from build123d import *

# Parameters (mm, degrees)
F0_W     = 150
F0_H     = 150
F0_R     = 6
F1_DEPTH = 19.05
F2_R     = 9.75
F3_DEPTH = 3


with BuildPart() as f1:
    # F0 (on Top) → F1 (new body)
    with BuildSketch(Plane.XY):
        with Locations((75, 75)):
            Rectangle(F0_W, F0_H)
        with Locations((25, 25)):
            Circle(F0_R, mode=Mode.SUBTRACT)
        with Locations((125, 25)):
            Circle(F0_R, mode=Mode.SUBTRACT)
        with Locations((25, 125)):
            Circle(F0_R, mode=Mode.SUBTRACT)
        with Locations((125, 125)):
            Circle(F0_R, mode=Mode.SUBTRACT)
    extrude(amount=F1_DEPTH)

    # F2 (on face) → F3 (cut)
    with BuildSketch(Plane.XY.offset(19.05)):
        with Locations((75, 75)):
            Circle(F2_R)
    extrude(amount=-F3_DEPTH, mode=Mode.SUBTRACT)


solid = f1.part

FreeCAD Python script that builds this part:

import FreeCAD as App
import Part
import Sketcher

doc = App.newDocument("Part")
body = doc.addObject("PartDesign::Body", "Body")

sketch1 = doc.addObject("Sketcher::SketchObject", "Sketch")
body.addObject(sketch1)
sketch1.AttachmentSupport = (doc.XY_Plane, [""])
sketch1.MapMode = "FlatFace"
sketch1.addGeometry(Part.LineSegment(App.Vector(0, 150, 0), App.Vector(0, 0, 0)), False)
sketch1.addGeometry(Part.LineSegment(App.Vector(0, 0, 0), App.Vector(150, 0, 0)), False)
sketch1.addGeometry(Part.LineSegment(App.Vector(150, 0, 0), App.Vector(150, 150, 0)), False)
sketch1.addGeometry(Part.LineSegment(App.Vector(150, 150, 0), App.Vector(0, 150, 0)), False)
sketch1.addGeometry(Part.Circle(App.Vector(25, 25, 0), App.Vector(0, 0, 1), 6), False)
sketch1.addGeometry(Part.Circle(App.Vector(125, 25, 0), App.Vector(0, 0, 1), 6), False)
sketch1.addGeometry(Part.Circle(App.Vector(25, 125, 0), App.Vector(0, 0, 1), 6), False)
sketch1.addGeometry(Part.Circle(App.Vector(125, 125, 0), App.Vector(0, 0, 1), 6), False)
sketch1.addConstraint(Sketcher.Constraint("Coincident", 0, 2, 1, 1))
sketch1.addConstraint(Sketcher.Constraint("Coincident", 1, 2, 2, 1))
sketch1.addConstraint(Sketcher.Constraint("Coincident", 2, 2, 3, 1))
sketch1.addConstraint(Sketcher.Constraint("Coincident", 3, 2, 0, 1))
sketch1.addConstraint(Sketcher.Constraint("Vertical", 0))
sketch1.addConstraint(Sketcher.Constraint("Horizontal", 1))
sketch1.addConstraint(Sketcher.Constraint("Vertical", 2))
sketch1.addConstraint(Sketcher.Constraint("Horizontal", 3))
sketch1.addConstraint(Sketcher.Constraint("Coincident", 0, 2, -1, 1))
sketch1.addConstraint(Sketcher.Constraint("Equal", 4, 5))
sketch1.addConstraint(Sketcher.Constraint("Equal", 5, 6))
sketch1.addConstraint(Sketcher.Constraint("Equal", 6, 7))
sketch1.addConstraint(Sketcher.Constraint("Horizontal", 4, 3, 5, 3))
sketch1.addConstraint(Sketcher.Constraint("Horizontal", 6, 3, 7, 3))
sketch1.addConstraint(Sketcher.Constraint("Vertical", 4, 3, 6, 3))
sketch1.addConstraint(Sketcher.Constraint("Vertical", 5, 3, 7, 3))
sketch1.addConstraint(Sketcher.Constraint("Equal", 3, 0))
sketch1.addConstraint(Sketcher.Constraint("Diameter", 4, 12.0))
sketch1.addConstraint(Sketcher.Constraint("DistanceX", 1, 1, 1, 2, 150.0))
sketch1.addConstraint(Sketcher.Constraint("DistanceX", -1, 1, 4, 3, 25.0))
sketch1.addConstraint(Sketcher.Constraint("DistanceY", -1, 1, 4, 3, 25.0))
sketch1.addConstraint(Sketcher.Constraint("DistanceX", -1, 1, 5, 3, 125.0))
sketch1.addConstraint(Sketcher.Constraint("DistanceY", -1, 1, 6, 3, 125.0))
pad1 = doc.addObject("PartDesign::Pad", "Pad")
body.addObject(pad1)
pad1.Profile = sketch1
pad1.Length = 19.05

sketch2 = doc.addObject("Sketcher::SketchObject", "Sketch001")
body.addObject(sketch2)
sketch2.AttachmentSupport = (doc.XY_Plane, [""])
sketch2.MapMode = "FlatFace"
sketch2.AttachmentOffset = App.Placement(App.Vector(0, 0, 19.05), App.Rotation())
sketch2.addGeometry(Part.Circle(App.Vector(75, 75, 0), App.Vector(0, 0, 1), 10), False)
sketch2.addConstraint(Sketcher.Constraint("Diameter", 0, 19.5))
sketch2.addConstraint(Sketcher.Constraint("DistanceX", -1, 1, 0, 3, 75.0))
sketch2.addConstraint(Sketcher.Constraint("DistanceY", -1, 1, 0, 3, 75.0))
pocket1 = doc.addObject("PartDesign::Pocket", "Pocket")
body.addObject(pocket1)
pocket1.Profile = sketch2
pocket1.Length = 3

doc.recompute()
